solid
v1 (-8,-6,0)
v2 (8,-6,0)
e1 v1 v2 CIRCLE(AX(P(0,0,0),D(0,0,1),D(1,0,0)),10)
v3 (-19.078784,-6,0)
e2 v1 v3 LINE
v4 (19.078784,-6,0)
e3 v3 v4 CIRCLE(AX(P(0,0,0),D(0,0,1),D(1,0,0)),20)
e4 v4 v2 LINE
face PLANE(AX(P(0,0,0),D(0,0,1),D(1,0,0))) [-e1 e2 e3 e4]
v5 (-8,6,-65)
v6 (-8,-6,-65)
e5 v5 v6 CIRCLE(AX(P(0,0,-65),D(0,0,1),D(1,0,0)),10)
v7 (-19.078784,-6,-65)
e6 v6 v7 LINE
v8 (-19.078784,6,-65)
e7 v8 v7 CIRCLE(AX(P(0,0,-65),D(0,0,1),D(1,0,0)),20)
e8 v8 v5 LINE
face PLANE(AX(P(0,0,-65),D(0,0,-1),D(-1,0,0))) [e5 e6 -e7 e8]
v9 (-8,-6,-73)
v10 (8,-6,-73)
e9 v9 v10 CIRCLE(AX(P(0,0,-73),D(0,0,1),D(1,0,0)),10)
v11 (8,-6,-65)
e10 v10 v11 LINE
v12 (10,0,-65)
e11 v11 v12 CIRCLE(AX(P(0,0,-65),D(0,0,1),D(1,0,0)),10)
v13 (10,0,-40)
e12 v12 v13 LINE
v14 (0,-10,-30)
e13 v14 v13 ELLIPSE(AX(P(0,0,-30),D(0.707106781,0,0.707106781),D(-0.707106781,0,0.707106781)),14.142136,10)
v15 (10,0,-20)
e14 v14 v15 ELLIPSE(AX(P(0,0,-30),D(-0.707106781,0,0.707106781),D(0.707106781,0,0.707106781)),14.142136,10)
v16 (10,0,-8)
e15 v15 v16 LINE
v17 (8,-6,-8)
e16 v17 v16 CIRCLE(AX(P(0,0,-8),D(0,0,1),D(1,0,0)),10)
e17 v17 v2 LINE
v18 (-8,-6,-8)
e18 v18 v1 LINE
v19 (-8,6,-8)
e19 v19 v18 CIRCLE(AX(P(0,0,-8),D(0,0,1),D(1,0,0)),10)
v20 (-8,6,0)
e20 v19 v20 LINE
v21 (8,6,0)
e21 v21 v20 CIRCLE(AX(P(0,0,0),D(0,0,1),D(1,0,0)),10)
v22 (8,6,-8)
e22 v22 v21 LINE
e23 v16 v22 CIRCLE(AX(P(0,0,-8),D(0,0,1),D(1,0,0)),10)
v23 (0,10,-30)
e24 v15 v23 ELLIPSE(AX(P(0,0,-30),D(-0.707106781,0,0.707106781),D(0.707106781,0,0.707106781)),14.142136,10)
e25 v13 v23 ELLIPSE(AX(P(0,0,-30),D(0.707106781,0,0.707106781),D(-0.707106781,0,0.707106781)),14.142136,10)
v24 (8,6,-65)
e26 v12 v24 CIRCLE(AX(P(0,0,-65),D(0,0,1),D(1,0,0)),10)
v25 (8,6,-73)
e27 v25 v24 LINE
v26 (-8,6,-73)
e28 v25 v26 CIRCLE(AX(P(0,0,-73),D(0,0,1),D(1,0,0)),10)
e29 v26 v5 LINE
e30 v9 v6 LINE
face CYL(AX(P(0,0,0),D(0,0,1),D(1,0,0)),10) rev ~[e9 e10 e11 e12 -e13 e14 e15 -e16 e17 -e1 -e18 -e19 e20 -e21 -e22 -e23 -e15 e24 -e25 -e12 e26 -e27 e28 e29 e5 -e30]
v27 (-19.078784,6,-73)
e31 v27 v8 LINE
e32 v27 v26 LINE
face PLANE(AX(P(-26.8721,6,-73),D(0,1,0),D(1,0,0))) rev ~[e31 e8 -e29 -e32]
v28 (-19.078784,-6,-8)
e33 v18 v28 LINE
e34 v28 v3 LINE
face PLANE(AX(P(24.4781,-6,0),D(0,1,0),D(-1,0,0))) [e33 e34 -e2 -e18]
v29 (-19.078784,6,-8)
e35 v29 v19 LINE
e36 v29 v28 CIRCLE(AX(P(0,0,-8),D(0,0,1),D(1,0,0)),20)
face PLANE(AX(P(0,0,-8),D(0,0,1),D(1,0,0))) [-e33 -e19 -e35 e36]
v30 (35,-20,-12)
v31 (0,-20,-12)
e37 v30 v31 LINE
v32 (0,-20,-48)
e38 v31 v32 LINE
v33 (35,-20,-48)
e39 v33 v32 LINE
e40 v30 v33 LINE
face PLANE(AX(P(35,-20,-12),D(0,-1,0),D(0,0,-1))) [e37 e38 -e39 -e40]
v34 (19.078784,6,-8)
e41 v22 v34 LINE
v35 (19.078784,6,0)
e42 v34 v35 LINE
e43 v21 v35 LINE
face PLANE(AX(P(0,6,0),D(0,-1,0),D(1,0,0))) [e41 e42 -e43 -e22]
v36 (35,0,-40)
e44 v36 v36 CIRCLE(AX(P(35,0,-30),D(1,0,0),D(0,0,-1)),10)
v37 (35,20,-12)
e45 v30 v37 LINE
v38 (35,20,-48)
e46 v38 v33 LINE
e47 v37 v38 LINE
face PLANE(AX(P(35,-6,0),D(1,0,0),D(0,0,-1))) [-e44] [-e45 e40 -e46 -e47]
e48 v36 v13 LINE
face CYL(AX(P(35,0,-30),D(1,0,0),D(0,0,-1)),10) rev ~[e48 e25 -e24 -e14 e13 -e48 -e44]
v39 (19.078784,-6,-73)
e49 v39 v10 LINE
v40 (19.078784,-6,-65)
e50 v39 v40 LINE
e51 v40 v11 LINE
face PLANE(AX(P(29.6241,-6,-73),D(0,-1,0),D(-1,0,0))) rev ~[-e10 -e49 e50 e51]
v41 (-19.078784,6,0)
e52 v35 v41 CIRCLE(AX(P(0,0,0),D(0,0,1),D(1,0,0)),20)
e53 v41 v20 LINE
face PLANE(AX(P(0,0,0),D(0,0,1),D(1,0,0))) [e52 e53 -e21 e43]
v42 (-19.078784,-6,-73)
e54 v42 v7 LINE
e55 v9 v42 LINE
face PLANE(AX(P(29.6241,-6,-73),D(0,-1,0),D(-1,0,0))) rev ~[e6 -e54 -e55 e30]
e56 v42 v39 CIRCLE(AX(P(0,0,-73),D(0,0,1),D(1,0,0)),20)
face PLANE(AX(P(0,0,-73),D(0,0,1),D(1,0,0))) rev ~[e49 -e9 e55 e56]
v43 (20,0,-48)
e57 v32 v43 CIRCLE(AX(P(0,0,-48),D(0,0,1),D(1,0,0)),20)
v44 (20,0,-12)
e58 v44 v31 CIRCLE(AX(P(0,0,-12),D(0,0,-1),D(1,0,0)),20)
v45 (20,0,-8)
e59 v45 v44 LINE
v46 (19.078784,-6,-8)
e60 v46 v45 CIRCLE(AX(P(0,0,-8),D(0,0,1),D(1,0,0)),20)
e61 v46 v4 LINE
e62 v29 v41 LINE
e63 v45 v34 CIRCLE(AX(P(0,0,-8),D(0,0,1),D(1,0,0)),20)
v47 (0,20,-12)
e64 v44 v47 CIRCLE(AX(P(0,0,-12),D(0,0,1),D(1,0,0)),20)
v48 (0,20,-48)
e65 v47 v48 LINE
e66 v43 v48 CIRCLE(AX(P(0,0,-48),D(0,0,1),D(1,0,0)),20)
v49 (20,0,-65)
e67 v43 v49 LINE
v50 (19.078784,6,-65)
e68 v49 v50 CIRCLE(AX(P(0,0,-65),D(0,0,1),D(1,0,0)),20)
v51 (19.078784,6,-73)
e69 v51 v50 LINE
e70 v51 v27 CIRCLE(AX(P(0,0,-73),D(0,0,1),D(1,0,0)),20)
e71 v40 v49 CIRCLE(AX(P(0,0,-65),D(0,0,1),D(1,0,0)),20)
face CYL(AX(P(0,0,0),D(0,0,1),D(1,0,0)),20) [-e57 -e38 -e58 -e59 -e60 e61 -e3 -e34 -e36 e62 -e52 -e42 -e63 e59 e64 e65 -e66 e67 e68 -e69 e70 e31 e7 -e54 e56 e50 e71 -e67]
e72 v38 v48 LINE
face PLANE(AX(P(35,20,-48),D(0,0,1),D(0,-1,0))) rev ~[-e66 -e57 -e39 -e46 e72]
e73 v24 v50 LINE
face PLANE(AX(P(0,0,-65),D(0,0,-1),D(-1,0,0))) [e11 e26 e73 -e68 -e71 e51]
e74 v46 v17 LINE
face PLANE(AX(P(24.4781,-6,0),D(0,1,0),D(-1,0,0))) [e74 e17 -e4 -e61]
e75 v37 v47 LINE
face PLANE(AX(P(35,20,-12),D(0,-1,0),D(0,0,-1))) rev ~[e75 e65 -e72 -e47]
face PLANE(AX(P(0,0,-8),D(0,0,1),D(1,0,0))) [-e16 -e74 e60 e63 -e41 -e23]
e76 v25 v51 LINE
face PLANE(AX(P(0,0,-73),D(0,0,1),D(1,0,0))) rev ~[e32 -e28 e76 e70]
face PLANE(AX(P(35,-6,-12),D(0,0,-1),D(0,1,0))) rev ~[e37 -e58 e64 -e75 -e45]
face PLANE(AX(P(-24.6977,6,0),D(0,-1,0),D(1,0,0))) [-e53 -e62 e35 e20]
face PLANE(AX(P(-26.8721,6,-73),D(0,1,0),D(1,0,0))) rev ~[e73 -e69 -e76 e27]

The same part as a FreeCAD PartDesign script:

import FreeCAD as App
import Part
import Sketcher
Q = App.Units.Quantity


def add_polygon(sketch, points):
    """Adds a closed chain of lines whose ends are joined by coincident constraints."""
    first, n = sketch.GeometryCount, len(points)
    for a, b in zip(points, points[1:] + points[:1]):
        sketch.addGeometry(Part.LineSegment(App.Vector(*a, 0), App.Vector(*b, 0)), False)
    for i in range(n):
        sketch.addConstraint(Sketcher.Constraint("Coincident", first + i, 2, first + (i + 1) % n, 1))

doc = App.newDocument("Part")
body = doc.addObject("PartDesign::Body", "Body")

# Sketch on XY plane
sketch1 = body.newObject("Sketcher::SketchObject", "Sketch")
sketch1.AttachmentSupport = (doc.getObject("XY_Plane"), [""])
sketch1.MapMode = "FlatFace"
sketch1.addGeometry(Part.Circle(App.Vector(0, 0, 0), App.Vector(0, 0, 1), 20), False)
sketch1.addGeometry(Part.Circle(App.Vector(0, 0, 0), App.Vector(0, 0, 1), 10), False)
sketch1.addConstraint(Sketcher.Constraint("Coincident", 0, 3, -1, 1))
sketch1.addConstraint(Sketcher.Constraint("Coincident", 1, 3, -1, 1))
sketch1.addConstraint(Sketcher.Constraint("Diameter", 0, Q("40 mm")))
sketch1.addConstraint(Sketcher.Constraint("Diameter", 1, Q("20 mm")))
pad1 = body.newObject("PartDesign::Pad", "Pad")
pad1.Profile = sketch1
pad1.Length = 73
pad1.Reversed = True

# Sketch on XY plane
sketch2 = body.newObject("Sketcher::SketchObject", "Sketch001")
sketch2.AttachmentSupport = (doc.getObject("XY_Plane"), [""])
sketch2.MapMode = "FlatFace"
add_polygon(sketch2, [(24, 6), (-25, 6), (-25, -6), (24, -6)])  # lines 0-3
sketch2.addConstraint(Sketcher.Constraint("Horizontal", 0))
sketch2.addConstraint(Sketcher.Constraint("Vertical", 1))
sketch2.addConstraint(Sketcher.Constraint("Horizontal", 2))
sketch2.addConstraint(Sketcher.Constraint("Vertical", 3))
sketch2.addConstraint(Sketcher.Constraint("DistanceY", 1, 2, 1, 1, Q("12 mm")))
sketch2.addConstraint(Sketcher.Constraint("DistanceY", -1, 1, 0, 2, Q("6 mm")))
sketch2.addConstraint(Sketcher.Constraint("DistanceX", 0, 2, 0, 1, Q("49.1758 mm")))
sketch2.addConstraint(Sketcher.Constraint("DistanceX", -1, 1, 2, 2, Q("24.478 mm")))
pocket1 = body.newObject("PartDesign::Pocket", "Pocket")
pocket1.Profile = sketch2
pocket1.Length = 8

# Sketch on XY plane
sketch3 = body.newObject("Sketcher::SketchObject", "Sketch002")
sketch3.AttachmentSupport = (doc.getObject("XY_Plane"), [""])
sketch3.MapMode = "FlatFace"
sketch3.AttachmentOffset = App.Placement(App.Vector(0, 0, -73), App.Rotation())
add_polygon(sketch3, [(-27, -6), (-27, 6), (30, 6), (30, -6)])  # lines 0-3
sketch3.addConstraint(Sketcher.Constraint("Vertical", 0))
sketch3.addConstraint(Sketcher.Constraint("Horizontal", 1))
sketch3.addConstraint(Sketcher.Constraint("Vertical", 2))
sketch3.addConstraint(Sketcher.Constraint("Horizontal", 3))
sketch3.addConstraint(Sketcher.Constraint("DistanceY", 0, 1, 0, 2, Q("12 mm")))
sketch3.addConstraint(Sketcher.Constraint("DistanceY", -1, 1, 0, 2, Q("6 mm")))
sketch3.addConstraint(Sketcher.Constraint("DistanceX", 1, 1, 1, 2, Q("56.4962 mm")))
sketch3.addConstraint(Sketcher.Constraint("DistanceX", 0, 2, -1, 1, Q("26.872 mm")))
pocket2 = body.newObject("PartDesign::Pocket", "Pocket001")
pocket2.Profile = sketch3
pocket2.Length = 8
pocket2.Reversed = True

# Sketch on YZ plane
sketch4 = body.newObject("Sketcher::SketchObject", "Sketch003")
sketch4.AttachmentSupport = (doc.getObject("YZ_Plane"), [""])
sketch4.MapMode = "FlatFace"
sketch4.AttachmentOffset = App.Placement(App.Vector(0, 0, 35), App.Rotation())
add_polygon(sketch4, [(20, -12), (-20, -12), (-20, -48), (20, -48)])  # lines 0-3
sketch4.addConstraint(Sketcher.Constraint("Horizontal", 0))
sketch4.addConstraint(Sketcher.Constraint("Vertical", 1))
sketch4.addConstraint(Sketcher.Constraint("Horizontal", 2))
sketch4.addConstraint(Sketcher.Constraint("Vertical", 3))
sketch4.addConstraint(Sketcher.Constraint("DistanceY", 1, 2, 1, 1, Q("36 mm")))
sketch4.addConstraint(Sketcher.Constraint("DistanceX", 0, 2, 0, 1, Q("40 mm")))
sketch4.addConstraint(Sketcher.Constraint("DistanceX", 0, 2, -1, 1, Q("20 mm")))
sketch4.addConstraint(Sketcher.Constraint("DistanceY", 0, 2, -1, 1, Q("12 mm")))
pad2 = body.newObject("PartDesign::Pad", "Pad001")
pad2.Profile = sketch4
pad2.Length = 35
pad2.Reversed = True

# Sketch on XY plane
sketch5 = body.newObject("Sketcher::SketchObject", "Sketch004")
sketch5.AttachmentSupport = (doc.getObject("XY_Plane"), [""])
sketch5.MapMode = "FlatFace"
sketch5.AttachmentOffset = App.Placement(App.Vector(0, 0, -12), App.Rotation())
sketch5.addGeometry(Part.Circle(App.Vector(0, 0, 0), App.Vector(0, 0, 1), 10), False)
sketch5.addConstraint(Sketcher.Constraint("Coincident", 0, 3, -1, 1))
sketch5.addConstraint(Sketcher.Constraint("Diameter", 0, Q("20 mm")))
pocket3 = body.newObject("PartDesign::Pocket", "Pocket002")
pocket3.Profile = sketch5
pocket3.Length = 65

# Sketch on YZ plane
sketch6 = body.newObject("Sketcher::SketchObject", "Sketch005")
sketch6.AttachmentSupport = (doc.getObject("YZ_Plane"), [""])
sketch6.MapMode = "FlatFace"
sketch6.AttachmentOffset = App.Placement(App.Vector(0, 0, 35), App.Rotation())
sketch6.addGeometry(Part.Circle(App.Vector(0, -30, 0), App.Vector(0, 0, 1), 10), False)
sketch6.addConstraint(Sketcher.Constraint("PointOnObject", 0, 3, -2))
sketch6.addConstraint(Sketcher.Constraint("Diameter", 0, Q("20 mm")))
sketch6.addConstraint(Sketcher.Constraint("DistanceY", 0, 3, -1, 1, Q("30 mm")))
pocket4 = body.newObject("PartDesign::Pocket", "Pocket003")
pocket4.Profile = sketch6
pocket4.Length = 35

doc.recompute()
